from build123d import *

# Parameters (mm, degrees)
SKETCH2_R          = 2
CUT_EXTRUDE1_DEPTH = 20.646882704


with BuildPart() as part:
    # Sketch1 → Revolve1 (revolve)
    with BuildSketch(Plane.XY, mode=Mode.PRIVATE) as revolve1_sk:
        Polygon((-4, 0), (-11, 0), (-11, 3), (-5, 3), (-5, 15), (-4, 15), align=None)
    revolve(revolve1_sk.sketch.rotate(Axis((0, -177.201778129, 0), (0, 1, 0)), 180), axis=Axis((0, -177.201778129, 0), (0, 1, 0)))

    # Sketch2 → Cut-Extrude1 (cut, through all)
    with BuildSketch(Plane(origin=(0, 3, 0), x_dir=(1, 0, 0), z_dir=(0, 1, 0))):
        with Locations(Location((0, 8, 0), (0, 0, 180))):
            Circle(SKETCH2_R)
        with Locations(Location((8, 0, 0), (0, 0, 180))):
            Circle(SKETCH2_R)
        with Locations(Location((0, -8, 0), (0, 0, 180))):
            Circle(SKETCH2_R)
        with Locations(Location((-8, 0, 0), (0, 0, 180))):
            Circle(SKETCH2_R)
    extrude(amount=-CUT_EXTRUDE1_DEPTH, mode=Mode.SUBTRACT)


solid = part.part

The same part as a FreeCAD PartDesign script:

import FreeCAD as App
import Part
import Sketcher
Q = App.Units.Quantity


def add_polygon(sketch, points):
    """Adds a closed chain of lines whose ends are joined by coincident constraints."""
    first, n = sketch.GeometryCount, len(points)
    for a, b in zip(points, points[1:] + points[:1]):
        sketch.addGeometry(Part.LineSegment(App.Vector(*a, 0), App.Vector(*b, 0)), False)
    for i in range(n):
        sketch.addConstraint(Sketcher.Constraint("Coincident", first + i, 2, first + (i + 1) % n, 1))

doc = App.newDocument("Part")
body = doc.addObject("PartDesign::Body", "Body")

# Sketch on XY plane
sketch1 = doc.addObject("Sketcher::SketchObject", "Sketch")
body.addObject(sketch1)
sketch1.AttachmentSupport = (doc.XY_Plane, [""])
sketch1.MapMode = "FlatFace"
add_polygon(sketch1, [(-11, 0), (-4, 0), (-4, 15), (-5, 15), (-5, 3), (-11, 3)])  # lines 0-5
sketch1.addConstraint([
    Sketcher.Constraint("Horizontal", 0),
    Sketcher.Constraint("Vertical", 1),
    Sketcher.Constraint("Horizontal", 2),
    Sketcher.Constraint("Vertical", 3),
    Sketcher.Constraint("Horizontal", 4),
    Sketcher.Constraint("Vertical", 5),
    Sketcher.Constraint("PointOnObject", 0, 2, -1),
    Sketcher.Constraint("DistanceX", 0, 1, 0, 2, Q("7 mm")),
    Sketcher.Constraint("DistanceX", 2, 2, 2, 1, Q("1 mm")),
    Sketcher.Constraint("DistanceY", 1, 1, 1, 2, Q("15 mm")),
    Sketcher.Constraint("DistanceY", 3, 2, 3, 1, Q("12 mm")),
    Sketcher.Constraint("DistanceX", 0, 2, -1, 1, Q("4 mm")),
])
revolution = doc.addObject("PartDesign::Revolution", "Revolution")
body.addObject(revolution)
revolution.Profile = sketch1
revolution.ReferenceAxis = (sketch1, ["V_Axis"])
revolution.Angle = 360

# Sketch on XZ plane
sketch2 = doc.addObject("Sketcher::SketchObject", "Sketch001")
body.addObject(sketch2)
sketch2.AttachmentSupport = (doc.XZ_Plane, [""])
sketch2.MapMode = "FlatFace"
sketch2.AttachmentOffset = App.Placement(App.Vector(0, 0, -3), App.Rotation())
sketch2.addGeometry([
    Part.Circle(App.Vector(0, -8, 0), App.Vector(0, 0, 1), 2),
    Part.Circle(App.Vector(8, 0, 0), App.Vector(0, 0, 1), 2),
    Part.Circle(App.Vector(0, 8, 0), App.Vector(0, 0, 1), 2),
    Part.Circle(App.Vector(-8, 0, 0), App.Vector(0, 0, 1), 2),
], False)
sketch2.addConstraint([
    Sketcher.Constraint("Equal", 0, 1),
    Sketcher.Constraint("Equal", 1, 2),
    Sketcher.Constraint("Equal", 2, 3),
    Sketcher.Constraint("Symmetric", 0, 3, 2, 3, -1, 1),
    Sketcher.Constraint("Symmetric", 1, 3, 3, 3, -1, 1),
    Sketcher.Constraint("PointOnObject", 0, 3, -2),
    Sketcher.Constraint("PointOnObject", 1, 3, -1),
    Sketcher.Constraint("Diameter", 0, Q("4 mm")),
    Sketcher.Constraint("DistanceY", 0, 3, -1, 1, Q("8 mm")),
    Sketcher.Constraint("DistanceX", -1, 1, 1, 3, Q("8 mm")),
])
pocket1 = doc.addObject("PartDesign::Pocket", "Pocket")
body.addObject(pocket1)
pocket1.Profile = sketch2
pocket1.Type = "ThroughAll"
pocket1.Reversed = True

doc.recompute()
